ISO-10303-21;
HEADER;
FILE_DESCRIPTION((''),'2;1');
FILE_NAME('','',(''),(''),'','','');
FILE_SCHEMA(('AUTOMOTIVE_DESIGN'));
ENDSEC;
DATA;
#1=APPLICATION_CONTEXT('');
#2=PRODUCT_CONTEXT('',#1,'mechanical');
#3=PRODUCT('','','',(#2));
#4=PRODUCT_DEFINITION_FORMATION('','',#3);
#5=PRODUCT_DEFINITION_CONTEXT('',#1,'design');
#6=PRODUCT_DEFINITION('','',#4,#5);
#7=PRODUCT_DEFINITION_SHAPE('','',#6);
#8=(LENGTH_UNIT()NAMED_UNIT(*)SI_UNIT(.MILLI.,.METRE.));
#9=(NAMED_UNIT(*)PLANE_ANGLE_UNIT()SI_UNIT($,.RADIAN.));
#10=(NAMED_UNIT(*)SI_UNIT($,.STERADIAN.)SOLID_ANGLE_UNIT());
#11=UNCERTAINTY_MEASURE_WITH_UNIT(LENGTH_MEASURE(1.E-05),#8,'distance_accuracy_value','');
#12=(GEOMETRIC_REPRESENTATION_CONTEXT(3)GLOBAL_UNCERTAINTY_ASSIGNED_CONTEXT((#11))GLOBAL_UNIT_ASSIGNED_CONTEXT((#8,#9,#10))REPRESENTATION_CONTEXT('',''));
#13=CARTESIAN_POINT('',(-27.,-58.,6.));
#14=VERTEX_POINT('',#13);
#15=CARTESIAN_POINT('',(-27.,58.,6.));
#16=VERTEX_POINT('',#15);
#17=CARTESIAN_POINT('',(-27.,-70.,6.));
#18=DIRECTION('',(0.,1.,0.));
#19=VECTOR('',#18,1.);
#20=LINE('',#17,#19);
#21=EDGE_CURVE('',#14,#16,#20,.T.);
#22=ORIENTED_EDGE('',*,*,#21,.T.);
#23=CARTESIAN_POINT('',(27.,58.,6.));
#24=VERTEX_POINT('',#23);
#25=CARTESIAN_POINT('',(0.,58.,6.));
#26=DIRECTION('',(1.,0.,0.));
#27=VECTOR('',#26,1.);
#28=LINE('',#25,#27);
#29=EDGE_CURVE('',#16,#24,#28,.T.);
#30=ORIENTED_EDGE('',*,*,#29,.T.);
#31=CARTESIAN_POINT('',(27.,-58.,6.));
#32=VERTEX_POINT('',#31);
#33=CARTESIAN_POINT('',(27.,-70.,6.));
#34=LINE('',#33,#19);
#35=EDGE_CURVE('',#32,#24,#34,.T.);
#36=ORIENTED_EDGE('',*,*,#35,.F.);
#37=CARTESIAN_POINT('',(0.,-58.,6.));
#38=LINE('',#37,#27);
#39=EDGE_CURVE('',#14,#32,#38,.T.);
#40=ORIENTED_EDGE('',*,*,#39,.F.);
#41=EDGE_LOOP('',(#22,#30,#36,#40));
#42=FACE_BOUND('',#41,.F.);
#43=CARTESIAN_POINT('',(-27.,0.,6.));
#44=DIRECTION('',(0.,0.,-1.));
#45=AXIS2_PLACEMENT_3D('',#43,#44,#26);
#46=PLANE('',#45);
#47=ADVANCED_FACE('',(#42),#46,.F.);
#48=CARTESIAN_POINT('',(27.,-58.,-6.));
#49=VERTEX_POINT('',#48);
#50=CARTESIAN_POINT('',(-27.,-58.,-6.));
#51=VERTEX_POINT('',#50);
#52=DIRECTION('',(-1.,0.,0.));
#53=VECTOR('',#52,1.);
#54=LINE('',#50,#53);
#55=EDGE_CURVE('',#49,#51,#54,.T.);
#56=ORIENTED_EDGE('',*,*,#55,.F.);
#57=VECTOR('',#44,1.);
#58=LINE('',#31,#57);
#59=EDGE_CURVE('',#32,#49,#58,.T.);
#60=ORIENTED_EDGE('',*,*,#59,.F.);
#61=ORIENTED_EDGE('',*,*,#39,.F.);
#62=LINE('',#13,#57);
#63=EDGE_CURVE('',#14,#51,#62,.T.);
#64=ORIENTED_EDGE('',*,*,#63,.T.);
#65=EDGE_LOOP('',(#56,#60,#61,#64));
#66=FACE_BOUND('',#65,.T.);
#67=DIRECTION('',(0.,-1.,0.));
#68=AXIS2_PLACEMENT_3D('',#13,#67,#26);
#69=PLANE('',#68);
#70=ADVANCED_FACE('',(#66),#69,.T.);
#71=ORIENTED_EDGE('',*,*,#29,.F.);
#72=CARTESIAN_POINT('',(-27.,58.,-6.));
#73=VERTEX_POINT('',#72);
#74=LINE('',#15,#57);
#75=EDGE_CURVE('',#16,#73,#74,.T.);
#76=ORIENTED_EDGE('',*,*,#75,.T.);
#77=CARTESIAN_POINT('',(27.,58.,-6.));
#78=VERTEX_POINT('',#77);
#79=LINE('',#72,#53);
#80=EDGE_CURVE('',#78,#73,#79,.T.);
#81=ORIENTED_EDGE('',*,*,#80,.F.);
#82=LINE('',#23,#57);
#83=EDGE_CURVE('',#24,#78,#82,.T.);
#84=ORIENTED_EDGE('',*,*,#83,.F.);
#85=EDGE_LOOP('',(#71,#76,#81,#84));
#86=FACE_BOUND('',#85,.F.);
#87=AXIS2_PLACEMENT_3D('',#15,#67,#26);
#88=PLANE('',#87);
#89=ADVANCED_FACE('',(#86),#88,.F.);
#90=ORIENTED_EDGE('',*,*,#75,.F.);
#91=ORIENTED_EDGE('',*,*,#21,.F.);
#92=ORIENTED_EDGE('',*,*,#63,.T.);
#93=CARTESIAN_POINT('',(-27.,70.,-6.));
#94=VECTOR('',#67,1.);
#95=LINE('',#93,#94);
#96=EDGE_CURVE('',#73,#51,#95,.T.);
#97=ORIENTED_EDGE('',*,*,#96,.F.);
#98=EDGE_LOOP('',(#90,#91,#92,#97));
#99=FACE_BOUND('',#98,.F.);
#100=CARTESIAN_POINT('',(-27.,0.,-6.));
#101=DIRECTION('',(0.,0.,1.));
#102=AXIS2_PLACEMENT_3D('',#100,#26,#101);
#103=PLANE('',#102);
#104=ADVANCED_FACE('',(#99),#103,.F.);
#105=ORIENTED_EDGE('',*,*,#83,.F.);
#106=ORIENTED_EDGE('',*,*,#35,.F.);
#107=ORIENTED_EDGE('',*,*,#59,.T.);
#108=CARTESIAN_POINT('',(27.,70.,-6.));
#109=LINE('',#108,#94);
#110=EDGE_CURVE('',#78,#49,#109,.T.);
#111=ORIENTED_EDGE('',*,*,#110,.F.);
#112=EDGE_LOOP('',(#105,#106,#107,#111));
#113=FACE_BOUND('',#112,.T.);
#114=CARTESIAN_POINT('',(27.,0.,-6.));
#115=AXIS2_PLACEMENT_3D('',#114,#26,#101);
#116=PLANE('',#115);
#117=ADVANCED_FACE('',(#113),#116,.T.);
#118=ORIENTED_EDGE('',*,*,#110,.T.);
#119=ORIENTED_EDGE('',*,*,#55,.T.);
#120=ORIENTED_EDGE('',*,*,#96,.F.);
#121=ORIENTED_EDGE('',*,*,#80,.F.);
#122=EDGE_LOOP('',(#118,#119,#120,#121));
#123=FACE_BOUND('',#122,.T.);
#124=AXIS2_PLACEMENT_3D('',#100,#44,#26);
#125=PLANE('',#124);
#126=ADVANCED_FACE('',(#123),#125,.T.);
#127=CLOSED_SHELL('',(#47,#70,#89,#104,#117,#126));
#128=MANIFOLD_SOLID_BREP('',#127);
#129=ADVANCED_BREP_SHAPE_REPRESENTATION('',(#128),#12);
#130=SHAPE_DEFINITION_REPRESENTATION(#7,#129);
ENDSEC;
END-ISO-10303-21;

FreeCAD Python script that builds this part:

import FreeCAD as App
import Part
import Sketcher

V = App.Vector
Q = App.Units.Quantity


def add_polygon(sketch, points):
    """Adds a closed chain of lines whose ends are joined by coincident constraints."""
    first, n = sketch.GeometryCount, len(points)
    for a, b in zip(points, points[1:] + points[:1]):
        sketch.addGeometry(Part.LineSegment(App.Vector(*a, 0), App.Vector(*b, 0)), False)
    for i in range(n):
        sketch.addConstraint(Sketcher.Constraint("Coincident", first + i, 2, first + (i + 1) % n, 1))

doc = App.newDocument("Part")
body = doc.addObject("PartDesign::Body", "Body")

sketch1 = body.newObject("Sketcher::SketchObject", "Sketch")
sketch1.AttachmentSupport = (doc.getObject("XZ_Plane"), [""])
sketch1.MapMode = "FlatFace"
add_polygon(sketch1, [(-27, 6), (-27, -6), (27, -6), (27, 6)])
sketch1.addConstraint(Sketcher.Constraint("Vertical", 0))
sketch1.addConstraint(Sketcher.Constraint("Horizontal", 1))
sketch1.addConstraint(Sketcher.Constraint("Vertical", 2))
sketch1.addConstraint(Sketcher.Constraint("Horizontal", 3))
sketch1.addConstraint(Sketcher.Constraint("Symmetric", 0, 2, 2, 2, -1, 1))
sketch1.addConstraint(Sketcher.Constraint("DistanceX", 1, 1, 1, 2, Q("54 mm")))
sketch1.addConstraint(Sketcher.Constraint("DistanceY", 0, 2, 0, 1, Q("12 mm")))
pad1 = body.newObject("PartDesign::Pad", "Pad")
pad1.Profile = sketch1
pad1.Length = 140
pad1.Midplane = True

sketch2 = body.newObject("Sketcher::SketchObject", "Sketch001")
sketch2.AttachmentSupport = (doc.getObject("XY_Plane"), [""])
sketch2.MapMode = "FlatFace"
sketch2.AttachmentOffset = App.Placement(V(0, 0, 6), App.Rotation())
add_polygon(sketch2, [(-27, 70), (-27, 58), (27, 58), (27, 70)])
add_polygon(sketch2, [(-27, -58), (-27, -70), (27, -70), (27, -58)])
sketch2.addConstraint(Sketcher.Constraint("Vertical", 0))
sketch2.addConstraint(Sketcher.Constraint("Horizontal", 1))
sketch2.addConstraint(Sketcher.Constraint("Vertical", 2))
sketch2.addConstraint(Sketcher.Constraint("Horizontal", 3))
sketch2.addConstraint(Sketcher.Constraint("Vertical", 4))
sketch2.addConstraint(Sketcher.Constraint("Horizontal", 5))
sketch2.addConstraint(Sketcher.Constraint("Vertical", 6))
sketch2.addConstraint(Sketcher.Constraint("Horizontal", 7))
sketch2.addConstraint(Sketcher.Constraint("Symmetric", 2, 2, 4, 2, -1, 1))
sketch2.addConstraint(Sketcher.Constraint("Symmetric", 0, 2, 6, 2, -1, 1))
sketch2.addConstraint(Sketcher.Constraint("Vertical", 3, 2, 4, 2))
sketch2.addConstraint(Sketcher.Constraint("DistanceX", 1, 1, 1, 2, Q("54 mm")))
sketch2.addConstraint(Sketcher.Constraint("DistanceY", 0, 2, 0, 1, Q("12 mm")))
sketch2.addConstraint(Sketcher.Constraint("DistanceY", -1, 1, 0, 2, Q("58 mm")))
pocket1 = body.newObject("PartDesign::Pocket", "Pocket")
pocket1.Profile = sketch2
pocket1.Length = 100

doc.recompute()
